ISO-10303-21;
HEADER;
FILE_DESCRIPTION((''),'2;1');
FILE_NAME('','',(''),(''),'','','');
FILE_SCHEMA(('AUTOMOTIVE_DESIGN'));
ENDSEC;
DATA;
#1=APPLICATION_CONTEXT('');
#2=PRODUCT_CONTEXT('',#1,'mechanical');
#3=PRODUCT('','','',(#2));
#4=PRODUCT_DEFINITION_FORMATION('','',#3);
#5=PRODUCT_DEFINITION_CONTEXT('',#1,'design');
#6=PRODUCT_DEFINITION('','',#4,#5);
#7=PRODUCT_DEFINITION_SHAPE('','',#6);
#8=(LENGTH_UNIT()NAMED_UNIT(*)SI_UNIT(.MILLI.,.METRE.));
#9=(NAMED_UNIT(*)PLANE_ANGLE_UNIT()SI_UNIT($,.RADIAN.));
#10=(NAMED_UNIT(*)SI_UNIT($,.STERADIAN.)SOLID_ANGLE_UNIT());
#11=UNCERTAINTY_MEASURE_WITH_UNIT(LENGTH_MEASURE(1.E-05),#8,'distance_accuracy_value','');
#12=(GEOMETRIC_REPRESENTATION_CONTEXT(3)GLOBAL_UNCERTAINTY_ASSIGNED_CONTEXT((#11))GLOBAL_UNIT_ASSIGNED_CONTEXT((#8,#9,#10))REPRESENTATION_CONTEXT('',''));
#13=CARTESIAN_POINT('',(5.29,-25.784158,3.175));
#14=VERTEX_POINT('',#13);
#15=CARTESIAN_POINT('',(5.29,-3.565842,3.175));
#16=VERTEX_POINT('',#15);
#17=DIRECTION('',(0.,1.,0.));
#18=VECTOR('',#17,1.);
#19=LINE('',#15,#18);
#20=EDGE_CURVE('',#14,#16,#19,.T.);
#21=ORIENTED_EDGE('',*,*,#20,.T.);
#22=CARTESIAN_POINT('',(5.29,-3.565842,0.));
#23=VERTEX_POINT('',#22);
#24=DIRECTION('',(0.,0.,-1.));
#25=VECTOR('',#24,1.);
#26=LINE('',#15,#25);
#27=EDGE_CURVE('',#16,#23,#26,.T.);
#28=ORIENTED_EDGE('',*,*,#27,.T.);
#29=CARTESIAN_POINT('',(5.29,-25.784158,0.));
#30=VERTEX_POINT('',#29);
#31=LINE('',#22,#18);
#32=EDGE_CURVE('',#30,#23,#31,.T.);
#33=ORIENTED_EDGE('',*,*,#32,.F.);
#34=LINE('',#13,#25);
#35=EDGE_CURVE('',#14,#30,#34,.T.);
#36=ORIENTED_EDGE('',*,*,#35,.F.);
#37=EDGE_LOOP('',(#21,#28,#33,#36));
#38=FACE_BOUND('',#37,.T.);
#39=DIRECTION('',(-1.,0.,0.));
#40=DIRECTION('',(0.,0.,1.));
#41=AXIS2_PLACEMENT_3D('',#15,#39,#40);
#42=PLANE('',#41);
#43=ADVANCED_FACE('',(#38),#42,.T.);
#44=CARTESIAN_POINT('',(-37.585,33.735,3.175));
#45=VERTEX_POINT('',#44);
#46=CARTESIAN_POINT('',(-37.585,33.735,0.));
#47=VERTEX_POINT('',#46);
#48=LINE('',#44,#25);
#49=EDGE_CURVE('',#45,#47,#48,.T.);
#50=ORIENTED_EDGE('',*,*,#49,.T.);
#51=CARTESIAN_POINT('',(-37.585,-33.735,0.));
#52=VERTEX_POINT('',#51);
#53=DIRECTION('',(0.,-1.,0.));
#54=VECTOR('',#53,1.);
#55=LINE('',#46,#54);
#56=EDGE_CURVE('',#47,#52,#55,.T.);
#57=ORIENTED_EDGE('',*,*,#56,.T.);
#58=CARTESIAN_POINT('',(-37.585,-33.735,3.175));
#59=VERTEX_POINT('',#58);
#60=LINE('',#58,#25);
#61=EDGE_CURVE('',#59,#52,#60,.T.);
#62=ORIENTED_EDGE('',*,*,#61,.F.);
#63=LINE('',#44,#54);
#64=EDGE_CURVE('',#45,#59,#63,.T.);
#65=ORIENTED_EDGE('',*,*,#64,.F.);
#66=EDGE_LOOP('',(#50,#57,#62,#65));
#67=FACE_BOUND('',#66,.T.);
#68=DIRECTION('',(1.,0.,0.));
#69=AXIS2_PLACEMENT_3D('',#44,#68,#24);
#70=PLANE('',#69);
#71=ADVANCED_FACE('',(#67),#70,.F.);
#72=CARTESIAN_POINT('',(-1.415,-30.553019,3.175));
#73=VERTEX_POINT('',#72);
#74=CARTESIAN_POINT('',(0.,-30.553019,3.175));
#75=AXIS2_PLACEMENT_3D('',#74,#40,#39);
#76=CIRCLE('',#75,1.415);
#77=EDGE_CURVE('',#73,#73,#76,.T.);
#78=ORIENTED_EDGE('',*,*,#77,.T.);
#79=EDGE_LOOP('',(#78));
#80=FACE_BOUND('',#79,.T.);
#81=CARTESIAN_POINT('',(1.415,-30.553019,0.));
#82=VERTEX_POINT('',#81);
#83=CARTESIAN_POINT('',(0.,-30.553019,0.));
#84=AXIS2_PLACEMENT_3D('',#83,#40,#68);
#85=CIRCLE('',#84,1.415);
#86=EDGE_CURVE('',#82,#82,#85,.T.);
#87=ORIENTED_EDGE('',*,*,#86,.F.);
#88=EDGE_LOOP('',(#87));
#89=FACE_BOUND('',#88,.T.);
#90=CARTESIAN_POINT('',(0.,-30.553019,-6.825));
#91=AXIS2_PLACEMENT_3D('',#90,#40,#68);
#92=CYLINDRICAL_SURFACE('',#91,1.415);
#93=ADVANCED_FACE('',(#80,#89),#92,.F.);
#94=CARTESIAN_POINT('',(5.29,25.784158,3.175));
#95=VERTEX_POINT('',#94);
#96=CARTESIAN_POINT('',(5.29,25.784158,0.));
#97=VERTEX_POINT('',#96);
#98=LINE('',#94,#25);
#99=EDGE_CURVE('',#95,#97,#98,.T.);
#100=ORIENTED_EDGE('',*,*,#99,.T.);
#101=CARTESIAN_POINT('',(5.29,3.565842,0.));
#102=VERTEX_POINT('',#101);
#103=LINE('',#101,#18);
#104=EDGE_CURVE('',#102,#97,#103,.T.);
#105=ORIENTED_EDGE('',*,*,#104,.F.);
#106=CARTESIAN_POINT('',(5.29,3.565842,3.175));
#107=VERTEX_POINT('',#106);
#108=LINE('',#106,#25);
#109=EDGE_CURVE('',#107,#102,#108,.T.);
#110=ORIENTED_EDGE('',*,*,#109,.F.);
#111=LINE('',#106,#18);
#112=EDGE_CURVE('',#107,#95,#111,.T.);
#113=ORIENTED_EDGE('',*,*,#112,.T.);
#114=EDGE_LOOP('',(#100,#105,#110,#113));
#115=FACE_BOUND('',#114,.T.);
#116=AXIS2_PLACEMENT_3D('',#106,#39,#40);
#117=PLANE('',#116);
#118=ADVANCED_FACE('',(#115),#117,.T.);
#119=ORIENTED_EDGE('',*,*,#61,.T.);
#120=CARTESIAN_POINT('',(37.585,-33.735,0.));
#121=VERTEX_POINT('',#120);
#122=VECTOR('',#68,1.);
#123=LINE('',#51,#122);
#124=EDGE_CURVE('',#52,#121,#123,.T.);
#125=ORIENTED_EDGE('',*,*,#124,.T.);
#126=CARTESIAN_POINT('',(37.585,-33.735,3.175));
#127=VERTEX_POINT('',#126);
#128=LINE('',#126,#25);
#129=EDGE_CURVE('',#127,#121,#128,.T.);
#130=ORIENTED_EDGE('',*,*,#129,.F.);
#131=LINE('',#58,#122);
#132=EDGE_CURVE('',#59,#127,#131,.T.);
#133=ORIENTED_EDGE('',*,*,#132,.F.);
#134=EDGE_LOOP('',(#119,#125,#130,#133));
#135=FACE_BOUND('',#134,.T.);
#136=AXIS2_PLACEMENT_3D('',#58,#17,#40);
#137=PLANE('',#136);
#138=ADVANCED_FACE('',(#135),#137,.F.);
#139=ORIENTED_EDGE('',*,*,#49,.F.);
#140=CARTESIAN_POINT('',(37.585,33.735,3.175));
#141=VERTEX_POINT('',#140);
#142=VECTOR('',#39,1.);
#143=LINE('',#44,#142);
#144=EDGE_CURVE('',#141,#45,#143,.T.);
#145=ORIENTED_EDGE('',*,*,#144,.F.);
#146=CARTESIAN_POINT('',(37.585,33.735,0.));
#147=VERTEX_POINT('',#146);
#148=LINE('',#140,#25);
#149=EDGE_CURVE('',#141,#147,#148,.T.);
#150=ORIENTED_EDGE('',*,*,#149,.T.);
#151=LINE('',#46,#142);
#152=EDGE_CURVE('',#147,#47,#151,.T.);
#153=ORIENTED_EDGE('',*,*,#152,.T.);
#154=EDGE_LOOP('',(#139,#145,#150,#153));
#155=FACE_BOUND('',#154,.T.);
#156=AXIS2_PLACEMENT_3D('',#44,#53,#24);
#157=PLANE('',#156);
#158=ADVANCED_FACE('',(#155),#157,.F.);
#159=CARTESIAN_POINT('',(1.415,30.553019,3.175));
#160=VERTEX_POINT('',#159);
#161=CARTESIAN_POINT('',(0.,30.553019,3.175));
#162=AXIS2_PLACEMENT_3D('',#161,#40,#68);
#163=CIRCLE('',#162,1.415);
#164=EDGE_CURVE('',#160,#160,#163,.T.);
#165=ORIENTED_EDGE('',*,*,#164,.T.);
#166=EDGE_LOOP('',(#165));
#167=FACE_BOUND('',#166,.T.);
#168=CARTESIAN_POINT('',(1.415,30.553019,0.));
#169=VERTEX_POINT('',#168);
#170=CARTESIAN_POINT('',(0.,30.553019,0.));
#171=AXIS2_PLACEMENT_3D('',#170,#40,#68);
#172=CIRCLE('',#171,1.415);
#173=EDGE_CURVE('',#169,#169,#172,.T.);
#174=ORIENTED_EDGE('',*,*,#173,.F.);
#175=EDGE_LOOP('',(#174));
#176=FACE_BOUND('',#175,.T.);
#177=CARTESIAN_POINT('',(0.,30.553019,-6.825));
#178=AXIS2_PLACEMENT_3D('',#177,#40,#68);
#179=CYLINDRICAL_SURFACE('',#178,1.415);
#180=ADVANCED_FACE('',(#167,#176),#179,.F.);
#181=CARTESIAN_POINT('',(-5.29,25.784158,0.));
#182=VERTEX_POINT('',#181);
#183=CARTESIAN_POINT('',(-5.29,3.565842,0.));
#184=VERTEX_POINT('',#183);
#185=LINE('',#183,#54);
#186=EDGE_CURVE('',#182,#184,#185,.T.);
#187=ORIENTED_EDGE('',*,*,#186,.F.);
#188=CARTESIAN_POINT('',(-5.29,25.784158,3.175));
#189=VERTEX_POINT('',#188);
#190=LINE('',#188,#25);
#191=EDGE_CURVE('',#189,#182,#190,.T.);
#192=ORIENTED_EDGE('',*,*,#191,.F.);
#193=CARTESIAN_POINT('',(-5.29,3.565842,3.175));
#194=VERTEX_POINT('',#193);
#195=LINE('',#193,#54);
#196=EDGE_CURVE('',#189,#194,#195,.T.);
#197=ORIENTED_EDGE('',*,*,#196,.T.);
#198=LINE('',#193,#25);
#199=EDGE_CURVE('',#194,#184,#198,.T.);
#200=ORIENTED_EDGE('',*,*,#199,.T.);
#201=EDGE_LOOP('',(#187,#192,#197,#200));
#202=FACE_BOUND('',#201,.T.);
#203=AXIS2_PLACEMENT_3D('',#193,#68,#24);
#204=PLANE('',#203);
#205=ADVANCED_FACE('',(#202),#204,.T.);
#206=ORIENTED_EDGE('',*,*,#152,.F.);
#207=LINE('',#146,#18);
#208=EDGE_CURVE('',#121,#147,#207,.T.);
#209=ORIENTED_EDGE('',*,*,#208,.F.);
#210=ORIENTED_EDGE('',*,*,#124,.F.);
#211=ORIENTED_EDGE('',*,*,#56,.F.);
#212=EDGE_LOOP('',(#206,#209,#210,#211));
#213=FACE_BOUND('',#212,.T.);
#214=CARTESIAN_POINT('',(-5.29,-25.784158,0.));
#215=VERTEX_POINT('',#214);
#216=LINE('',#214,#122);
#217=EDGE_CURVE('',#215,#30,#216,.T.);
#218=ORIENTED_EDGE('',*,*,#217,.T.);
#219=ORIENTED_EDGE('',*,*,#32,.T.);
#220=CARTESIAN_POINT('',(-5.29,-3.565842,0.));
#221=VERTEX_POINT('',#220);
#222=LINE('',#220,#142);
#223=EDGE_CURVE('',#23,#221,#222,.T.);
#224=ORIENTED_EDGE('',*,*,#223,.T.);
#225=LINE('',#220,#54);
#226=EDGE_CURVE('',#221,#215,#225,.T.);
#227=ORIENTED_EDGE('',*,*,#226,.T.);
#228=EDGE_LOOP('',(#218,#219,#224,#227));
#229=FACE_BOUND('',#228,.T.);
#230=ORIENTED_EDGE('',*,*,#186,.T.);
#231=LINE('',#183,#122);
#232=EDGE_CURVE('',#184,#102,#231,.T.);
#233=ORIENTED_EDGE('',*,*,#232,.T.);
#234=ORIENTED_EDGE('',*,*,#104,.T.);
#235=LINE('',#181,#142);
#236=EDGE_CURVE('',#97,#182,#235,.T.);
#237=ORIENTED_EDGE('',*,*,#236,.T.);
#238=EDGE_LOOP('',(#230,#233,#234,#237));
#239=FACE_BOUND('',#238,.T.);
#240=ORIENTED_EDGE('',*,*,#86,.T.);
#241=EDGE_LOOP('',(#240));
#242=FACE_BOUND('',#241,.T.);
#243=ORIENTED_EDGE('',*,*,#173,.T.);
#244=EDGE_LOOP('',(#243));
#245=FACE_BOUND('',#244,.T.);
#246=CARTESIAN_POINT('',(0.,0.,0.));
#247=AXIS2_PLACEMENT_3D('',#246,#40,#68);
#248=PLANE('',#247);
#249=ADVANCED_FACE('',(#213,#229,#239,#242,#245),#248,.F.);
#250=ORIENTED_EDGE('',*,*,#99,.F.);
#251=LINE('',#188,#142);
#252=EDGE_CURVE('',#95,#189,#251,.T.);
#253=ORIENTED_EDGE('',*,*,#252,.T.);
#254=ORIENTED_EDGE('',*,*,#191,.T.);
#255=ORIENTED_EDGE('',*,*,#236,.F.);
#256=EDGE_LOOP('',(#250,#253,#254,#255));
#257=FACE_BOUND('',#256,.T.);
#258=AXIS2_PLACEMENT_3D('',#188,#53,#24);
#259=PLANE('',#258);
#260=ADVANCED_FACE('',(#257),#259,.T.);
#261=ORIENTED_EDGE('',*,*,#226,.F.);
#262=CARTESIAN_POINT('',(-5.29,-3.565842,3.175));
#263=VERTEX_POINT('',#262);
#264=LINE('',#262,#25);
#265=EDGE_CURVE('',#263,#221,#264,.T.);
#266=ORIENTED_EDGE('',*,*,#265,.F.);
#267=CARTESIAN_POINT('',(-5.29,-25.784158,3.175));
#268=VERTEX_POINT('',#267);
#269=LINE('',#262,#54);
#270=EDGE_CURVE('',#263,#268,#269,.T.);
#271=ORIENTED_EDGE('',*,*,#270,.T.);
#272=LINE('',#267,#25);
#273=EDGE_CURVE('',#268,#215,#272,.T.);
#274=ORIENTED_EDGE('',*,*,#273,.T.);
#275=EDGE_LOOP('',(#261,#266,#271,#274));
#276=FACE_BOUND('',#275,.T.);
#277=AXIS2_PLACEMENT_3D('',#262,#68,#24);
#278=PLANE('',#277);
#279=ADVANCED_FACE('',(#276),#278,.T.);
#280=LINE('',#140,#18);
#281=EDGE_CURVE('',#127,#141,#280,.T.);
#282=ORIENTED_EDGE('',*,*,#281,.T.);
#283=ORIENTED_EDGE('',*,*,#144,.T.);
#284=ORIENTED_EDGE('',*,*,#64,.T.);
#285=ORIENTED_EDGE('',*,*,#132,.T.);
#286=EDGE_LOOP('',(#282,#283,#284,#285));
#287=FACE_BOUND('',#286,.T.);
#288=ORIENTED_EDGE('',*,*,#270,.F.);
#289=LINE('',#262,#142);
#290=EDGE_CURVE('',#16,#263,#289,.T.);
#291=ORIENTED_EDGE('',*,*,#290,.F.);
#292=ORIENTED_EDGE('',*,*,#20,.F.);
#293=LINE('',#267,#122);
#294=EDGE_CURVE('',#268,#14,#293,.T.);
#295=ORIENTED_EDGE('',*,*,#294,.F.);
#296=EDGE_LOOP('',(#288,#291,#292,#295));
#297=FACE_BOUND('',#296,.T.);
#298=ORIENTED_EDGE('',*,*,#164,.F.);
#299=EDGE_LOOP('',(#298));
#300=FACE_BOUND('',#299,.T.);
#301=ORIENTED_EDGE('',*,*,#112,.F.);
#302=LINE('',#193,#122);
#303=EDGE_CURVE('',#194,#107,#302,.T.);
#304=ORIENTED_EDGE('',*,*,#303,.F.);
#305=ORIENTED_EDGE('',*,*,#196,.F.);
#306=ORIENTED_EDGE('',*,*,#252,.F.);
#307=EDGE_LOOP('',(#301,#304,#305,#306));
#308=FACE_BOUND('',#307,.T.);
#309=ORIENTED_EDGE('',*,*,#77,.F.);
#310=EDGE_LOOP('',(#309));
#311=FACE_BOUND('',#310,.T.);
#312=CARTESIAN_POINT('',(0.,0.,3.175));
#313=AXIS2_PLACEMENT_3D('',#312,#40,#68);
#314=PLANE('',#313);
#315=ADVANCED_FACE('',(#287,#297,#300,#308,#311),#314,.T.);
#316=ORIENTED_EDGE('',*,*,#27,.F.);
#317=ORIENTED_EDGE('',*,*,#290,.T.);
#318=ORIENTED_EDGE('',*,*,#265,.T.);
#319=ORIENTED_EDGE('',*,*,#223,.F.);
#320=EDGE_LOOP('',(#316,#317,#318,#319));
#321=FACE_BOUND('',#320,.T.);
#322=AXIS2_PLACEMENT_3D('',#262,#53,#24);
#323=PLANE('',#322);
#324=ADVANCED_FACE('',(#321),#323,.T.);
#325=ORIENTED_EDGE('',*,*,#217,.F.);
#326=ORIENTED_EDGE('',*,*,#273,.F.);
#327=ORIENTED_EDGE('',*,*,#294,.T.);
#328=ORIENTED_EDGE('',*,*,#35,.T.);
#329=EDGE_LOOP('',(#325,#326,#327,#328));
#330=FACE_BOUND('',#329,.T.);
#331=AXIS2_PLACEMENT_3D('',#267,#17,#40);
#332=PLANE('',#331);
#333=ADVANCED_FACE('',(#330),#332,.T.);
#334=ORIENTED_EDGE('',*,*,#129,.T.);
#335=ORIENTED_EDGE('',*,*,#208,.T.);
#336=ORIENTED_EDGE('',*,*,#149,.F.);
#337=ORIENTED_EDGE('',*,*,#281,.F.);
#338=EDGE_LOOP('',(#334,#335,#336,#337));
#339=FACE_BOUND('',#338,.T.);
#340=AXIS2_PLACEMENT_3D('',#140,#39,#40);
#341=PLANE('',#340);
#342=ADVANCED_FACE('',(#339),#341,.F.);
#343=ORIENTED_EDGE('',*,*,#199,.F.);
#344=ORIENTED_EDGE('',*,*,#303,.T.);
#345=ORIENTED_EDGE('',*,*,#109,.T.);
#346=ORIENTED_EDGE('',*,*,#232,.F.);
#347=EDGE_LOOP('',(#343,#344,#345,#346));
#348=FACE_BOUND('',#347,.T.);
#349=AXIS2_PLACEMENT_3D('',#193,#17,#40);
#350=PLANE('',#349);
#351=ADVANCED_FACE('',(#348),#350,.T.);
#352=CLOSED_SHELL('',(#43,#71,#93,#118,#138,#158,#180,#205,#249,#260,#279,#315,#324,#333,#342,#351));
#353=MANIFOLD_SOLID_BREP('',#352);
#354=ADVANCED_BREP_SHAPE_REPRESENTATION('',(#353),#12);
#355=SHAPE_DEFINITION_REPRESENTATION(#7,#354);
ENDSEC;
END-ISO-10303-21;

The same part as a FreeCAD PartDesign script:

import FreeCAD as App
import Part
import Sketcher
Q = App.Units.Quantity

doc = App.newDocument("Part")
params = doc.addObject("Spreadsheet::Sheet", "Params")
for row, (alias, value) in enumerate([
    ("sketch1_width", "75.17 mm"),
    ("sketch1_width2", "10.58 mm"),
    ("sketch1_height", "67.47 mm"),
    ("pad1_length", "3.175 mm"),
    ("sketch2_diameter", "2.83 mm"),
    ("pocket1_length", "10 mm"),
], start=1):
    params.set(f"A{row}", alias)
    params.set(f"B{row}", "=" + value)
    params.setAlias(f"B{row}", alias)

body = doc.addObject("PartDesign::Body", "Body")

# Sketch on XY plane
sketch1 = body.newObject("Sketcher::SketchObject", "Sketch")
sketch1.AttachmentSupport = (doc.getObject("XY_Plane"), [""])
sketch1.MapMode = "FlatFace"
sketch1.addGeometry(Part.LineSegment(App.Vector(-37.585, 33.735, 0), App.Vector(-37.585, -33.735, 0)), False)
sketch1.addGeometry(Part.LineSegment(App.Vector(-37.585, -33.735, 0), App.Vector(37.585, -33.735, 0)), False)
sketch1.addGeometry(Part.LineSegment(App.Vector(37.585, -33.735, 0), App.Vector(37.585, 33.735, 0)), False)
sketch1.addGeometry(Part.LineSegment(App.Vector(37.585, 33.735, 0), App.Vector(-37.585, 33.735, 0)), False)
sketch1.addGeometry(Part.LineSegment(App.Vector(5.29, -25.784158, 0), App.Vector(-5.29, -25.784158, 0)), False)
sketch1.addGeometry(Part.LineSegment(App.Vector(-5.29, -25.784158, 0), App.Vector(-5.29, -3.565842, 0)), False)
sketch1.addGeometry(Part.LineSegment(App.Vector(-5.29, -3.565842, 0), App.Vector(5.29, -3.565842, 0)), False)
sketch1.addGeometry(Part.LineSegment(App.Vector(5.29, -3.565842, 0), App.Vector(5.29, -25.784158, 0)), False)
sketch1.addGeometry(Part.LineSegment(App.Vector(5.29, 3.565842, 0), App.Vector(-5.29, 3.565842, 0)), False)
sketch1.addGeometry(Part.LineSegment(App.Vector(-5.29, 3.565842, 0), App.Vector(-5.29, 25.784158, 0)), False)
sketch1.addGeometry(Part.LineSegment(App.Vector(-5.29, 25.784158, 0), App.Vector(5.29, 25.784158, 0)), False)
sketch1.addGeometry(Part.LineSegment(App.Vector(5.29, 25.784158, 0), App.Vector(5.29, 3.565842, 0)), False)
sketch1.addConstraint(Sketcher.Constraint("Coincident", 0, 2, 1, 1))
sketch1.addConstraint(Sketcher.Constraint("Coincident", 1, 2, 2, 1))
sketch1.addConstraint(Sketcher.Constraint("Coincident", 2, 2, 3, 1))
sketch1.addConstraint(Sketcher.Constraint("Coincident", 3, 2, 0, 1))
sketch1.addConstraint(Sketcher.Constraint("Coincident", 4, 2, 5, 1))
sketch1.addConstraint(Sketcher.Constraint("Coincident", 5, 2, 6, 1))
sketch1.addConstraint(Sketcher.Constraint("Coincident", 6, 2, 7, 1))
sketch1.addConstraint(Sketcher.Constraint("Coincident", 7, 2, 4, 1))
sketch1.addConstraint(Sketcher.Constraint("Coincident", 8, 2, 9, 1))
sketch1.addConstraint(Sketcher.Constraint("Coincident", 9, 2, 10, 1))
sketch1.addConstraint(Sketcher.Constraint("Coincident", 10, 2, 11, 1))
sketch1.addConstraint(Sketcher.Constraint("Coincident", 11, 2, 8, 1))
sketch1.addConstraint(Sketcher.Constraint("Vertical", 0))
sketch1.addConstraint(Sketcher.Constraint("Horizontal", 1))
sketch1.addConstraint(Sketcher.Constraint("Vertical", 2))
sketch1.addConstraint(Sketcher.Constraint("Horizontal", 3))
sketch1.addConstraint(Sketcher.Constraint("Horizontal", 4))
sketch1.addConstraint(Sketcher.Constraint("Vertical", 5))
sketch1.addConstraint(Sketcher.Constraint("Horizontal", 6))
sketch1.addConstraint(Sketcher.Constraint("Vertical", 7))
sketch1.addConstraint(Sketcher.Constraint("Horizontal", 8))
sketch1.addConstraint(Sketcher.Constraint("Vertical", 9))
sketch1.addConstraint(Sketcher.Constraint("Horizontal", 10))
sketch1.addConstraint(Sketcher.Constraint("Vertical", 11))
sketch1.addConstraint(Sketcher.Constraint("Symmetric", 0, 2, 2, 2, -1, 1))
sketch1.addConstraint(Sketcher.Constraint("Symmetric", 6, 2, 8, 2, -1, 1))
sketch1.addConstraint(Sketcher.Constraint("Symmetric", 4, 2, 10, 2, -1, 1))
sketch1.addConstraint(Sketcher.Constraint("Vertical", 5, 2, 8, 2))
sketch1.addConstraint(Sketcher.Constraint("DistanceX", 1, 1, 1, 2, Q("75.17 mm")))
sketch1.addConstraint(Sketcher.Constraint("DistanceX", 4, 2, 4, 1, Q("10.58 mm")))
sketch1.addConstraint(Sketcher.Constraint("DistanceY", 0, 2, 0, 1, Q("67.47 mm")))
sketch1.addConstraint(Sketcher.Constraint("DistanceY", 4, 2, 8, 2, Q("29.35 mm")))
sketch1.addConstraint(Sketcher.Constraint("DistanceY", 5, 1, 5, 2, Q("22.218317 mm")))
sketch1.setExpression("Constraints[28]", "Params.sketch1_width")
sketch1.setExpression("Constraints[29]", "Params.sketch1_width2")
sketch1.setExpression("Constraints[30]", "Params.sketch1_height")
pad1 = body.newObject("PartDesign::Pad", "Pad")
pad1.Profile = sketch1
pad1.setExpression("Length", "Params.pad1_length")

# Sketch on XY plane
sketch2 = body.newObject("Sketcher::SketchObject", "Sketch001")
sketch2.AttachmentSupport = (doc.getObject("XY_Plane"), [""])
sketch2.MapMode = "FlatFace"
sketch2.AttachmentOffset = App.Placement(App.Vector(0, 0, 3.175), App.Rotation())
sketch2.addGeometry(Part.Circle(App.Vector(0, 30.553019, 0), App.Vector(0, 0, 1), 1.415), False)
sketch2.addGeometry(Part.Circle(App.Vector(0, -30.553019, 0), App.Vector(0, 0, 1), 1.415), False)
sketch2.addConstraint(Sketcher.Constraint("Equal", 0, 1))
sketch2.addConstraint(Sketcher.Constraint("Symmetric", 0, 3, 1, 3, -1, 1))
sketch2.addConstraint(Sketcher.Constraint("PointOnObject", 0, 3, -2))
sketch2.addConstraint(Sketcher.Constraint("Diameter", 0, Q("2.83 mm")))
sketch2.addConstraint(Sketcher.Constraint("DistanceY", -1, 1, 0, 3, Q("30.553019 mm")))
sketch2.setExpression("Constraints[3]", "Params.sketch2_diameter")
pocket1 = body.newObject("PartDesign::Pocket", "Pocket")
pocket1.Profile = sketch2
pocket1.setExpression("Length", "Params.pocket1_length")

doc.recompute()
